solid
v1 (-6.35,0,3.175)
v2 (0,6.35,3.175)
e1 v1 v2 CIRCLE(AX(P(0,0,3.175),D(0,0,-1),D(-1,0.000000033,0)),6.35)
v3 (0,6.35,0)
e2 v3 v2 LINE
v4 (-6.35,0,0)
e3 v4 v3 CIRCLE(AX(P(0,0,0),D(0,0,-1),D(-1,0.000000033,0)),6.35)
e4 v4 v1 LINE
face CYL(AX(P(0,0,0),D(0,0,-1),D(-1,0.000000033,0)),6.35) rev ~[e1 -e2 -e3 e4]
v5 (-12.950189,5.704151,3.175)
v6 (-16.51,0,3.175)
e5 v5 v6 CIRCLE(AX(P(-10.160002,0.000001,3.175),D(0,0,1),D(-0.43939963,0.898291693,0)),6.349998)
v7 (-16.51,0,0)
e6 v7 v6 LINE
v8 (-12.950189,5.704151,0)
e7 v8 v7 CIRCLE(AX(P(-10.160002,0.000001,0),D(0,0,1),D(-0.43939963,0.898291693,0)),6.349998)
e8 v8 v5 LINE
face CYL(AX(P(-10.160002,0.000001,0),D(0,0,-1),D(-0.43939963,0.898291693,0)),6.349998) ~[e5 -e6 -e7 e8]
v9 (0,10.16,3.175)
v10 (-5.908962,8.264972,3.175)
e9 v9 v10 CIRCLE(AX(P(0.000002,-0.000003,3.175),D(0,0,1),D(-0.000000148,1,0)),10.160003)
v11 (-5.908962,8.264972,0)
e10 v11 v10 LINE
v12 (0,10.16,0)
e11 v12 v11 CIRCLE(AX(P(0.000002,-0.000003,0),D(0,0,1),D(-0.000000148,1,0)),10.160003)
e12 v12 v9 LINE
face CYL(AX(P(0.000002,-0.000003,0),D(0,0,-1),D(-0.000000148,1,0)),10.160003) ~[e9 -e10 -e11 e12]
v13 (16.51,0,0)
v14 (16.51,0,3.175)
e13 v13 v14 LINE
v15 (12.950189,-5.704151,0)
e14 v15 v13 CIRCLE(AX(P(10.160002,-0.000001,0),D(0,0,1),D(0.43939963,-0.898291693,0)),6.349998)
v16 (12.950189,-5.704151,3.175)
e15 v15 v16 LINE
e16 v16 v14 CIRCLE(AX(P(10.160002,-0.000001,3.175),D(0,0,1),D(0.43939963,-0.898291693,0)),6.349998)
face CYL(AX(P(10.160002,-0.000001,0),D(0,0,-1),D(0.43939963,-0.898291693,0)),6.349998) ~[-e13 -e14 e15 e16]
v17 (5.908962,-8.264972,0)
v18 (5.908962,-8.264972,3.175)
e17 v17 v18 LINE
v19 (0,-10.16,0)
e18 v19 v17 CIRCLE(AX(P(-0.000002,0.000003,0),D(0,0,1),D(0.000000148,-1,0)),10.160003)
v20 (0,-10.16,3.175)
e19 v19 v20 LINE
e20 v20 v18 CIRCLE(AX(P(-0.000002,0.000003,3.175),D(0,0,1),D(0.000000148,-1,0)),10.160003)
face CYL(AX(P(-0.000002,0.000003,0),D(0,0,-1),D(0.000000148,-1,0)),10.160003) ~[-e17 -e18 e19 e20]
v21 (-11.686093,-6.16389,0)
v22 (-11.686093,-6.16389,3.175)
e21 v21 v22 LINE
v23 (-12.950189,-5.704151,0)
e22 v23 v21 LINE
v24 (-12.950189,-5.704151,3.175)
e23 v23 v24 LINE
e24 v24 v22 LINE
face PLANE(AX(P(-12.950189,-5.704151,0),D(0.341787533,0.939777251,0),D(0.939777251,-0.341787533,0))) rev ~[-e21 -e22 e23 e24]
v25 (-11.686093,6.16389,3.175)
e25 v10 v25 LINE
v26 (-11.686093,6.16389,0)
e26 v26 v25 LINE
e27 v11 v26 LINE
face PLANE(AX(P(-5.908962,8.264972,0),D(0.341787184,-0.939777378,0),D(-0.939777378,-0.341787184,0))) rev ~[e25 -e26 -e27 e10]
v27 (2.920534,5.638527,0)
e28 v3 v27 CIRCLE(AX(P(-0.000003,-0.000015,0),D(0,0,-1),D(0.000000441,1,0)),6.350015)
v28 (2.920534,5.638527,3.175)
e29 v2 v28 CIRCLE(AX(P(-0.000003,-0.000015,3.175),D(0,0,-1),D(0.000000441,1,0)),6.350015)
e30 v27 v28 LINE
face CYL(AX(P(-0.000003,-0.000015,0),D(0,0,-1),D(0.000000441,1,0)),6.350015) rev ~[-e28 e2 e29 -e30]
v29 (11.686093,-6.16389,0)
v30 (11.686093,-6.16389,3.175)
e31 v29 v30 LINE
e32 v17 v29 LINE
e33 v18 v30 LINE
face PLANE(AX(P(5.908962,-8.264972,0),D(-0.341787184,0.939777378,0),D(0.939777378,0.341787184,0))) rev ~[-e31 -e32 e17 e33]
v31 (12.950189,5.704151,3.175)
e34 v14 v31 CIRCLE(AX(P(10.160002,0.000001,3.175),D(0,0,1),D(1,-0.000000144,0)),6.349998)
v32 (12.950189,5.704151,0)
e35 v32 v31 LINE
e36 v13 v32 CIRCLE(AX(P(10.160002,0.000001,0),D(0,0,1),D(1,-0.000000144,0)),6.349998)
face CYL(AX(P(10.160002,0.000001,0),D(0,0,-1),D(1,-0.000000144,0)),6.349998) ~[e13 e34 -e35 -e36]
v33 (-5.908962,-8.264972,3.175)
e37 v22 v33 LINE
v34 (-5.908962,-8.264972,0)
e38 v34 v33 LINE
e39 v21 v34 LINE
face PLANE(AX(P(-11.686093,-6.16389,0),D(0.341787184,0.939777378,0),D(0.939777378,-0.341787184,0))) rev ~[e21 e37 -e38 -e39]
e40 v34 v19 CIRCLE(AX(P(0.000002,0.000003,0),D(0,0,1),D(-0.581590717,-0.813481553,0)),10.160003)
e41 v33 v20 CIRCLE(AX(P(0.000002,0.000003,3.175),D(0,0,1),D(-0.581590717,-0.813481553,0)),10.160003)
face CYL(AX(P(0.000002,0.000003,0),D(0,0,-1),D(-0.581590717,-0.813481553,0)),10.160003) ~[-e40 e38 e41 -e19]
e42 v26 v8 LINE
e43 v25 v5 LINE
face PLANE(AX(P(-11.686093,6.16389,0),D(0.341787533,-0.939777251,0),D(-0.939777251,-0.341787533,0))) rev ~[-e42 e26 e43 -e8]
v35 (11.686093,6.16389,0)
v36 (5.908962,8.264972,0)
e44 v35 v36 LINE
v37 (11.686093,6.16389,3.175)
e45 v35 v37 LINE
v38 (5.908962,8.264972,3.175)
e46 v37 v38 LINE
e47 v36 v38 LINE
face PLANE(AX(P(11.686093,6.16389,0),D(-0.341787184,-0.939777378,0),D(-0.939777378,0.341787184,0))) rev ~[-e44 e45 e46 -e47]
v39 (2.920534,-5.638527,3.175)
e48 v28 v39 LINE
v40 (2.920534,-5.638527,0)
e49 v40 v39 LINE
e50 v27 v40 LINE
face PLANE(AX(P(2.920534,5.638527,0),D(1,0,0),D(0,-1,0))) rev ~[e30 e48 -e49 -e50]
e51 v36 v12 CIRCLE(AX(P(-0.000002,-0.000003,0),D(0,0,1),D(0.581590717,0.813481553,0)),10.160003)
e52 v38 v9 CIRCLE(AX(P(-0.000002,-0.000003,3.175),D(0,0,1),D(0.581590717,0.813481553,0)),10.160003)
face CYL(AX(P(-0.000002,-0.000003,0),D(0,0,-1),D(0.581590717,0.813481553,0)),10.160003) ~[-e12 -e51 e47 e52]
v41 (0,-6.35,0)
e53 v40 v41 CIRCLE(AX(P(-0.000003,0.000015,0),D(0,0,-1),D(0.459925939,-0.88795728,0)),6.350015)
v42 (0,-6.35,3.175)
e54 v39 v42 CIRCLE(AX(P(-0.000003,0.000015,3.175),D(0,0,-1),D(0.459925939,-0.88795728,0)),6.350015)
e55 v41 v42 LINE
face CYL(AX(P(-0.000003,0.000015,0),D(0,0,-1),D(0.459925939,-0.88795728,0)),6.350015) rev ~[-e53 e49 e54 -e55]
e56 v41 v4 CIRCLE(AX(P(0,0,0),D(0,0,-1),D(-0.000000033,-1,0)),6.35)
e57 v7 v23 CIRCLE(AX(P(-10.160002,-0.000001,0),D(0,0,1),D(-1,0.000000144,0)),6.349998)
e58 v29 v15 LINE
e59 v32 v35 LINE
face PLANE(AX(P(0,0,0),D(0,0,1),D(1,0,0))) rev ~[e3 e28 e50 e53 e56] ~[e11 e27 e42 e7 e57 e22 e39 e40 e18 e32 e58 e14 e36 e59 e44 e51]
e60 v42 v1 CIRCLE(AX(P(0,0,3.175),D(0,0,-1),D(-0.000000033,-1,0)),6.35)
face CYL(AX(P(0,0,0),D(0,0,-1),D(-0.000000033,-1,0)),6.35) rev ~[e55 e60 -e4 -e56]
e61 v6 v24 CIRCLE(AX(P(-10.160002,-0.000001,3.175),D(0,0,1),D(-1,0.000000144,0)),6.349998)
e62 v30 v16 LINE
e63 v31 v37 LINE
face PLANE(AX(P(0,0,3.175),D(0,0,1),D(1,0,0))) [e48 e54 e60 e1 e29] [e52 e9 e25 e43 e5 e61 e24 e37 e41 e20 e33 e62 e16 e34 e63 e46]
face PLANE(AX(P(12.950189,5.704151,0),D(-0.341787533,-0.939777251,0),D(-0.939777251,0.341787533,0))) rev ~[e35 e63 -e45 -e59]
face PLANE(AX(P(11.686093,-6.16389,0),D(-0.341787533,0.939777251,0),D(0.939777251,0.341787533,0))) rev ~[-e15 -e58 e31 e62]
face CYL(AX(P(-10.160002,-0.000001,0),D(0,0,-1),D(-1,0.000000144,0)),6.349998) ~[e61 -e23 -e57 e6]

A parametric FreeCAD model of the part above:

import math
import FreeCAD as App
import Part
import Sketcher
from FreeCAD import Vector
Q = App.Units.Quantity

doc = App.newDocument("Part")
body = doc.addObject("PartDesign::Body", "Body")

sketch1 = body.newObject("Sketcher::SketchObject", "Sketch")
sketch1.AttachmentSupport = (doc.getObject("XY_Plane"), [""])
sketch1.MapMode = "FlatFace"
sketch1.addGeometry(Part.ArcOfCircle(Part.Circle(Vector(-0.000002, -0.000003, 0), Vector(0, 0, 1), 10.160003), math.radians(54.437497), math.radians(89.999992)), False)
sketch1.addGeometry(Part.ArcOfCircle(Part.Circle(Vector(0.000002, -0.000003, 0), Vector(0, 0, 1), 10.160003), math.radians(90.000008), math.radians(125.562503)), False)
sketch1.addGeometry(Part.LineSegment(Vector(-5.908962, 8.264972, 0), Vector(-11.686093, 6.16389, 0)), False)
sketch1.addGeometry(Part.LineSegment(Vector(-11.686093, 6.16389, 0), Vector(-12.950189, 5.704151, 0)), False)
sketch1.addGeometry(Part.ArcOfCircle(Part.Circle(Vector(-10.160002, 0.000001, 0), Vector(0, 0, 1), 6.349998), math.radians(116.065581), math.radians(180.000008)), False)
sketch1.addGeometry(Part.ArcOfCircle(Part.Circle(Vector(-10.160002, -0.000001, 0), Vector(0, 0, 1), 6.349998), math.radians(179.999992), math.radians(243.934419)), False)
sketch1.addGeometry(Part.LineSegment(Vector(-12.950189, -5.704151, 0), Vector(-11.686093, -6.16389, 0)), False)
sketch1.addGeometry(Part.LineSegment(Vector(-11.686093, -6.16389, 0), Vector(-5.908962, -8.264972, 0)), False)
sketch1.addGeometry(Part.ArcOfCircle(Part.Circle(Vector(0.000002, 0.000003, 0), Vector(0, 0, 1), 10.160003), math.radians(-125.562503), math.radians(-90.000008)), False)
sketch1.addGeometry(Part.ArcOfCircle(Part.Circle(Vector(-0.000002, 0.000003, 0), Vector(0, 0, 1), 10.160003), math.radians(-89.999992), math.radians(-54.437497)), False)
sketch1.addGeometry(Part.LineSegment(Vector(5.908962, -8.264972, 0), Vector(11.686093, -6.16389, 0)), False)
sketch1.addGeometry(Part.LineSegment(Vector(11.686093, -6.16389, 0), Vector(12.950189, -5.704151, 0)), False)
sketch1.addGeometry(Part.ArcOfCircle(Part.Circle(Vector(10.160002, -0.000001, 0), Vector(0, 0, 1), 6.349998), math.radians(-63.934419), math.radians(0.000008)), False)
sketch1.addGeometry(Part.ArcOfCircle(Part.Circle(Vector(10.160002, 0.000001, 0), Vector(0, 0, 1), 6.349998), math.radians(-0.000008), math.radians(63.934419)), False)
sketch1.addGeometry(Part.LineSegment(Vector(12.950189, 5.704151, 0), Vector(11.686093, 6.16389, 0)), False)
sketch1.addGeometry(Part.LineSegment(Vector(11.686093, 6.16389, 0), Vector(5.908962, 8.264972, 0)), False)
sketch1.addGeometry(Part.ArcOfCircle(Part.Circle(Vector(0, 0, 0), Vector(0, 0, 1), 6.35), math.radians(-179.999998), math.radians(-90.000002)), False)
sketch1.addGeometry(Part.ArcOfCircle(Part.Circle(Vector(0, 0, 0), Vector(0, 0, 1), 6.35), math.radians(90.000002), math.radians(179.999998)), False)
sketch1.addGeometry(Part.ArcOfCircle(Part.Circle(Vector(-0.000003, -0.000015, 0), Vector(0, 0, 1), 6.350015), math.radians(62.617671), math.radians(89.999975)), False)
sketch1.addGeometry(Part.LineSegment(Vector(2.920534, 5.638527, 0), Vector(2.920534, -5.638527, 0)), False)
sketch1.addGeometry(Part.ArcOfCircle(Part.Circle(Vector(-0.000003, 0.000015, 0), Vector(0, 0, 1), 6.350015), math.radians(-89.999975), math.radians(-62.617671)), False)
sketch1.addConstraint(Sketcher.Constraint("Coincident", 0, 2, 1, 1))
sketch1.addConstraint(Sketcher.Constraint("Coincident", 1, 2, 2, 1))
sketch1.addConstraint(Sketcher.Constraint("Coincident", 2, 2, 3, 1))
sketch1.addConstraint(Sketcher.Constraint("Coincident", 3, 2, 4, 1))
sketch1.addConstraint(Sketcher.Constraint("Coincident", 4, 2, 5, 1))
sketch1.addConstraint(Sketcher.Constraint("Coincident", 5, 2, 6, 1))
sketch1.addConstraint(Sketcher.Constraint("Coincident", 6, 2, 7, 1))
sketch1.addConstraint(Sketcher.Constraint("Coincident", 7, 2, 8, 1))
sketch1.addConstraint(Sketcher.Constraint("Coincident", 8, 2, 9, 1))
sketch1.addConstraint(Sketcher.Constraint("Coincident", 9, 2, 10, 1))
sketch1.addConstraint(Sketcher.Constraint("Coincident", 10, 2, 11, 1))
sketch1.addConstraint(Sketcher.Constraint("Coincident", 11, 2, 12, 1))
sketch1.addConstraint(Sketcher.Constraint("Coincident", 12, 2, 13, 1))
sketch1.addConstraint(Sketcher.Constraint("Coincident", 13, 2, 14, 1))
sketch1.addConstraint(Sketcher.Constraint("Coincident", 14, 2, 15, 1))
sketch1.addConstraint(Sketcher.Constraint("Coincident", 15, 2, 0, 1))
sketch1.addConstraint(Sketcher.Constraint("Coincident", 16, 1, 17, 2))
sketch1.addConstraint(Sketcher.Constraint("Coincident", 17, 1, 18, 2))
sketch1.addConstraint(Sketcher.Constraint("Coincident", 18, 1, 19, 1))
sketch1.addConstraint(Sketcher.Constraint("Coincident", 19, 2, 20, 2))
sketch1.addConstraint(Sketcher.Constraint("Coincident", 20, 1, 16, 2))
sketch1.addConstraint(Sketcher.Constraint("Vertical", 19))
sketch1.addConstraint(Sketcher.Constraint("Coincident", 0, 3, -1, 1))
sketch1.addConstraint(Sketcher.Constraint("Coincident", 1, 3, -1, 1))
sketch1.addConstraint(Sketcher.Constraint("Coincident", 8, 3, -1, 1))
sketch1.addConstraint(Sketcher.Constraint("Coincident", 9, 3, -1, 1))
sketch1.addConstraint(Sketcher.Constraint("Coincident", 16, 3, -1, 1))
sketch1.addConstraint(Sketcher.Constraint("Coincident", 17, 3, -1, 1))
sketch1.addConstraint(Sketcher.Constraint("Coincident", 5, 3, 4, 3))
sketch1.addConstraint(Sketcher.Constraint("Coincident", 13, 3, 12, 3))
sketch1.addConstraint(Sketcher.Constraint("PointOnObject", 4, 3, -1))
sketch1.addConstraint(Sketcher.Constraint("PointOnObject", 12, 3, -1))
sketch1.addConstraint(Sketcher.Constraint("PointOnObject", 0, 2, -2))
sketch1.addConstraint(Sketcher.Constraint("PointOnObject", 4, 2, -1))
sketch1.addConstraint(Sketcher.Constraint("PointOnObject", 8, 2, -2))
sketch1.addConstraint(Sketcher.Constraint("PointOnObject", 12, 2, -1))
sketch1.addConstraint(Sketcher.Constraint("PointOnObject", 16, 1, -1))
sketch1.addConstraint(Sketcher.Constraint("PointOnObject", 17, 1, -2))
sketch1.addConstraint(Sketcher.Constraint("PointOnObject", 20, 1, -2))
sketch1.addConstraint(Sketcher.Constraint("Radius", 0, Q("0.4000001 in")))
sketch1.addConstraint(Sketcher.Constraint("Radius", 8, Q("0.4000001 in")))
sketch1.addConstraint(Sketcher.Constraint("Radius", 4, Q("0.2499999 in")))
sketch1.addConstraint(Sketcher.Constraint("Radius", 12, Q("0.2499999 in")))
sketch1.addConstraint(Sketcher.Constraint("Radius", 16, Q("0.25 in")))
sketch1.addConstraint(Sketcher.Constraint("DistanceX", 4, 3, -1, 1, Q("0.4000001 in")))
sketch1.addConstraint(Sketcher.Constraint("DistanceX", -1, 1, 12, 3, Q("0.4000001 in")))
sketch1.addConstraint(Sketcher.Constraint("DistanceX", 16, 1, 18, 3, Q("0.2499999 in")))
sketch1.addConstraint(Sketcher.Constraint("DistanceX", 16, 1, 20, 3, Q("0.2499999 in")))
sketch1.addConstraint(Sketcher.Constraint("Radius", 18, Q("6.350015 mm")))
sketch1.addConstraint(Sketcher.Constraint("Radius", 20, Q("6.350015 mm")))
sketch1.addConstraint(Sketcher.Constraint("DistanceY", 3, 2, 2, 2, Q("0.0181 in")))
sketch1.addConstraint(Sketcher.Constraint("DistanceY", 6, 2, 5, 2, Q("0.0181 in")))
sketch1.addConstraint(Sketcher.Constraint("DistanceY", 10, 2, 11, 2, Q("0.0181 in")))
sketch1.addConstraint(Sketcher.Constraint("DistanceY", 13, 2, 14, 2, Q("0.0181 in")))
sketch1.addConstraint(Sketcher.Constraint("Distance", 3, Q("1.345102 mm")))
sketch1.addConstraint(Sketcher.Constraint("Distance", 6, Q("1.345102 mm")))
sketch1.addConstraint(Sketcher.Constraint("Distance", 11, Q("1.345102 mm")))
sketch1.addConstraint(Sketcher.Constraint("Distance", 14, Q("1.345102 mm")))
sketch1.addConstraint(Sketcher.Constraint("Distance", 2, Q("6.14734 mm")))
sketch1.addConstraint(Sketcher.Constraint("Distance", 7, Q("6.14734 mm")))
sketch1.addConstraint(Sketcher.Constraint("Distance", 10, Q("6.14734 mm")))
sketch1.addConstraint(Sketcher.Constraint("Distance", 15, Q("6.14734 mm")))
sketch1.addConstraint(Sketcher.Constraint("DistanceY", 19, 2, 19, 1, Q("11.277054 mm")))
sketch1.addConstraint(Sketcher.Constraint("DistanceX", 1, 2, -1, 1, Q("5.908962 mm")))
sketch1.addConstraint(Sketcher.Constraint("DistanceX", 5, 2, -1, 1, Q("12.950189 mm")))
sketch1.addConstraint(Sketcher.Constraint("DistanceX", -1, 1, 9, 2, Q("5.908962 mm")))
sketch1.addConstraint(Sketcher.Constraint("DistanceX", -1, 1, 13, 2, Q("12.950189 mm")))
pad1 = body.newObject("PartDesign::Pad", "Pad")
pad1.Profile = sketch1
pad1.Length = Q("0.125 in")

doc.recompute()
